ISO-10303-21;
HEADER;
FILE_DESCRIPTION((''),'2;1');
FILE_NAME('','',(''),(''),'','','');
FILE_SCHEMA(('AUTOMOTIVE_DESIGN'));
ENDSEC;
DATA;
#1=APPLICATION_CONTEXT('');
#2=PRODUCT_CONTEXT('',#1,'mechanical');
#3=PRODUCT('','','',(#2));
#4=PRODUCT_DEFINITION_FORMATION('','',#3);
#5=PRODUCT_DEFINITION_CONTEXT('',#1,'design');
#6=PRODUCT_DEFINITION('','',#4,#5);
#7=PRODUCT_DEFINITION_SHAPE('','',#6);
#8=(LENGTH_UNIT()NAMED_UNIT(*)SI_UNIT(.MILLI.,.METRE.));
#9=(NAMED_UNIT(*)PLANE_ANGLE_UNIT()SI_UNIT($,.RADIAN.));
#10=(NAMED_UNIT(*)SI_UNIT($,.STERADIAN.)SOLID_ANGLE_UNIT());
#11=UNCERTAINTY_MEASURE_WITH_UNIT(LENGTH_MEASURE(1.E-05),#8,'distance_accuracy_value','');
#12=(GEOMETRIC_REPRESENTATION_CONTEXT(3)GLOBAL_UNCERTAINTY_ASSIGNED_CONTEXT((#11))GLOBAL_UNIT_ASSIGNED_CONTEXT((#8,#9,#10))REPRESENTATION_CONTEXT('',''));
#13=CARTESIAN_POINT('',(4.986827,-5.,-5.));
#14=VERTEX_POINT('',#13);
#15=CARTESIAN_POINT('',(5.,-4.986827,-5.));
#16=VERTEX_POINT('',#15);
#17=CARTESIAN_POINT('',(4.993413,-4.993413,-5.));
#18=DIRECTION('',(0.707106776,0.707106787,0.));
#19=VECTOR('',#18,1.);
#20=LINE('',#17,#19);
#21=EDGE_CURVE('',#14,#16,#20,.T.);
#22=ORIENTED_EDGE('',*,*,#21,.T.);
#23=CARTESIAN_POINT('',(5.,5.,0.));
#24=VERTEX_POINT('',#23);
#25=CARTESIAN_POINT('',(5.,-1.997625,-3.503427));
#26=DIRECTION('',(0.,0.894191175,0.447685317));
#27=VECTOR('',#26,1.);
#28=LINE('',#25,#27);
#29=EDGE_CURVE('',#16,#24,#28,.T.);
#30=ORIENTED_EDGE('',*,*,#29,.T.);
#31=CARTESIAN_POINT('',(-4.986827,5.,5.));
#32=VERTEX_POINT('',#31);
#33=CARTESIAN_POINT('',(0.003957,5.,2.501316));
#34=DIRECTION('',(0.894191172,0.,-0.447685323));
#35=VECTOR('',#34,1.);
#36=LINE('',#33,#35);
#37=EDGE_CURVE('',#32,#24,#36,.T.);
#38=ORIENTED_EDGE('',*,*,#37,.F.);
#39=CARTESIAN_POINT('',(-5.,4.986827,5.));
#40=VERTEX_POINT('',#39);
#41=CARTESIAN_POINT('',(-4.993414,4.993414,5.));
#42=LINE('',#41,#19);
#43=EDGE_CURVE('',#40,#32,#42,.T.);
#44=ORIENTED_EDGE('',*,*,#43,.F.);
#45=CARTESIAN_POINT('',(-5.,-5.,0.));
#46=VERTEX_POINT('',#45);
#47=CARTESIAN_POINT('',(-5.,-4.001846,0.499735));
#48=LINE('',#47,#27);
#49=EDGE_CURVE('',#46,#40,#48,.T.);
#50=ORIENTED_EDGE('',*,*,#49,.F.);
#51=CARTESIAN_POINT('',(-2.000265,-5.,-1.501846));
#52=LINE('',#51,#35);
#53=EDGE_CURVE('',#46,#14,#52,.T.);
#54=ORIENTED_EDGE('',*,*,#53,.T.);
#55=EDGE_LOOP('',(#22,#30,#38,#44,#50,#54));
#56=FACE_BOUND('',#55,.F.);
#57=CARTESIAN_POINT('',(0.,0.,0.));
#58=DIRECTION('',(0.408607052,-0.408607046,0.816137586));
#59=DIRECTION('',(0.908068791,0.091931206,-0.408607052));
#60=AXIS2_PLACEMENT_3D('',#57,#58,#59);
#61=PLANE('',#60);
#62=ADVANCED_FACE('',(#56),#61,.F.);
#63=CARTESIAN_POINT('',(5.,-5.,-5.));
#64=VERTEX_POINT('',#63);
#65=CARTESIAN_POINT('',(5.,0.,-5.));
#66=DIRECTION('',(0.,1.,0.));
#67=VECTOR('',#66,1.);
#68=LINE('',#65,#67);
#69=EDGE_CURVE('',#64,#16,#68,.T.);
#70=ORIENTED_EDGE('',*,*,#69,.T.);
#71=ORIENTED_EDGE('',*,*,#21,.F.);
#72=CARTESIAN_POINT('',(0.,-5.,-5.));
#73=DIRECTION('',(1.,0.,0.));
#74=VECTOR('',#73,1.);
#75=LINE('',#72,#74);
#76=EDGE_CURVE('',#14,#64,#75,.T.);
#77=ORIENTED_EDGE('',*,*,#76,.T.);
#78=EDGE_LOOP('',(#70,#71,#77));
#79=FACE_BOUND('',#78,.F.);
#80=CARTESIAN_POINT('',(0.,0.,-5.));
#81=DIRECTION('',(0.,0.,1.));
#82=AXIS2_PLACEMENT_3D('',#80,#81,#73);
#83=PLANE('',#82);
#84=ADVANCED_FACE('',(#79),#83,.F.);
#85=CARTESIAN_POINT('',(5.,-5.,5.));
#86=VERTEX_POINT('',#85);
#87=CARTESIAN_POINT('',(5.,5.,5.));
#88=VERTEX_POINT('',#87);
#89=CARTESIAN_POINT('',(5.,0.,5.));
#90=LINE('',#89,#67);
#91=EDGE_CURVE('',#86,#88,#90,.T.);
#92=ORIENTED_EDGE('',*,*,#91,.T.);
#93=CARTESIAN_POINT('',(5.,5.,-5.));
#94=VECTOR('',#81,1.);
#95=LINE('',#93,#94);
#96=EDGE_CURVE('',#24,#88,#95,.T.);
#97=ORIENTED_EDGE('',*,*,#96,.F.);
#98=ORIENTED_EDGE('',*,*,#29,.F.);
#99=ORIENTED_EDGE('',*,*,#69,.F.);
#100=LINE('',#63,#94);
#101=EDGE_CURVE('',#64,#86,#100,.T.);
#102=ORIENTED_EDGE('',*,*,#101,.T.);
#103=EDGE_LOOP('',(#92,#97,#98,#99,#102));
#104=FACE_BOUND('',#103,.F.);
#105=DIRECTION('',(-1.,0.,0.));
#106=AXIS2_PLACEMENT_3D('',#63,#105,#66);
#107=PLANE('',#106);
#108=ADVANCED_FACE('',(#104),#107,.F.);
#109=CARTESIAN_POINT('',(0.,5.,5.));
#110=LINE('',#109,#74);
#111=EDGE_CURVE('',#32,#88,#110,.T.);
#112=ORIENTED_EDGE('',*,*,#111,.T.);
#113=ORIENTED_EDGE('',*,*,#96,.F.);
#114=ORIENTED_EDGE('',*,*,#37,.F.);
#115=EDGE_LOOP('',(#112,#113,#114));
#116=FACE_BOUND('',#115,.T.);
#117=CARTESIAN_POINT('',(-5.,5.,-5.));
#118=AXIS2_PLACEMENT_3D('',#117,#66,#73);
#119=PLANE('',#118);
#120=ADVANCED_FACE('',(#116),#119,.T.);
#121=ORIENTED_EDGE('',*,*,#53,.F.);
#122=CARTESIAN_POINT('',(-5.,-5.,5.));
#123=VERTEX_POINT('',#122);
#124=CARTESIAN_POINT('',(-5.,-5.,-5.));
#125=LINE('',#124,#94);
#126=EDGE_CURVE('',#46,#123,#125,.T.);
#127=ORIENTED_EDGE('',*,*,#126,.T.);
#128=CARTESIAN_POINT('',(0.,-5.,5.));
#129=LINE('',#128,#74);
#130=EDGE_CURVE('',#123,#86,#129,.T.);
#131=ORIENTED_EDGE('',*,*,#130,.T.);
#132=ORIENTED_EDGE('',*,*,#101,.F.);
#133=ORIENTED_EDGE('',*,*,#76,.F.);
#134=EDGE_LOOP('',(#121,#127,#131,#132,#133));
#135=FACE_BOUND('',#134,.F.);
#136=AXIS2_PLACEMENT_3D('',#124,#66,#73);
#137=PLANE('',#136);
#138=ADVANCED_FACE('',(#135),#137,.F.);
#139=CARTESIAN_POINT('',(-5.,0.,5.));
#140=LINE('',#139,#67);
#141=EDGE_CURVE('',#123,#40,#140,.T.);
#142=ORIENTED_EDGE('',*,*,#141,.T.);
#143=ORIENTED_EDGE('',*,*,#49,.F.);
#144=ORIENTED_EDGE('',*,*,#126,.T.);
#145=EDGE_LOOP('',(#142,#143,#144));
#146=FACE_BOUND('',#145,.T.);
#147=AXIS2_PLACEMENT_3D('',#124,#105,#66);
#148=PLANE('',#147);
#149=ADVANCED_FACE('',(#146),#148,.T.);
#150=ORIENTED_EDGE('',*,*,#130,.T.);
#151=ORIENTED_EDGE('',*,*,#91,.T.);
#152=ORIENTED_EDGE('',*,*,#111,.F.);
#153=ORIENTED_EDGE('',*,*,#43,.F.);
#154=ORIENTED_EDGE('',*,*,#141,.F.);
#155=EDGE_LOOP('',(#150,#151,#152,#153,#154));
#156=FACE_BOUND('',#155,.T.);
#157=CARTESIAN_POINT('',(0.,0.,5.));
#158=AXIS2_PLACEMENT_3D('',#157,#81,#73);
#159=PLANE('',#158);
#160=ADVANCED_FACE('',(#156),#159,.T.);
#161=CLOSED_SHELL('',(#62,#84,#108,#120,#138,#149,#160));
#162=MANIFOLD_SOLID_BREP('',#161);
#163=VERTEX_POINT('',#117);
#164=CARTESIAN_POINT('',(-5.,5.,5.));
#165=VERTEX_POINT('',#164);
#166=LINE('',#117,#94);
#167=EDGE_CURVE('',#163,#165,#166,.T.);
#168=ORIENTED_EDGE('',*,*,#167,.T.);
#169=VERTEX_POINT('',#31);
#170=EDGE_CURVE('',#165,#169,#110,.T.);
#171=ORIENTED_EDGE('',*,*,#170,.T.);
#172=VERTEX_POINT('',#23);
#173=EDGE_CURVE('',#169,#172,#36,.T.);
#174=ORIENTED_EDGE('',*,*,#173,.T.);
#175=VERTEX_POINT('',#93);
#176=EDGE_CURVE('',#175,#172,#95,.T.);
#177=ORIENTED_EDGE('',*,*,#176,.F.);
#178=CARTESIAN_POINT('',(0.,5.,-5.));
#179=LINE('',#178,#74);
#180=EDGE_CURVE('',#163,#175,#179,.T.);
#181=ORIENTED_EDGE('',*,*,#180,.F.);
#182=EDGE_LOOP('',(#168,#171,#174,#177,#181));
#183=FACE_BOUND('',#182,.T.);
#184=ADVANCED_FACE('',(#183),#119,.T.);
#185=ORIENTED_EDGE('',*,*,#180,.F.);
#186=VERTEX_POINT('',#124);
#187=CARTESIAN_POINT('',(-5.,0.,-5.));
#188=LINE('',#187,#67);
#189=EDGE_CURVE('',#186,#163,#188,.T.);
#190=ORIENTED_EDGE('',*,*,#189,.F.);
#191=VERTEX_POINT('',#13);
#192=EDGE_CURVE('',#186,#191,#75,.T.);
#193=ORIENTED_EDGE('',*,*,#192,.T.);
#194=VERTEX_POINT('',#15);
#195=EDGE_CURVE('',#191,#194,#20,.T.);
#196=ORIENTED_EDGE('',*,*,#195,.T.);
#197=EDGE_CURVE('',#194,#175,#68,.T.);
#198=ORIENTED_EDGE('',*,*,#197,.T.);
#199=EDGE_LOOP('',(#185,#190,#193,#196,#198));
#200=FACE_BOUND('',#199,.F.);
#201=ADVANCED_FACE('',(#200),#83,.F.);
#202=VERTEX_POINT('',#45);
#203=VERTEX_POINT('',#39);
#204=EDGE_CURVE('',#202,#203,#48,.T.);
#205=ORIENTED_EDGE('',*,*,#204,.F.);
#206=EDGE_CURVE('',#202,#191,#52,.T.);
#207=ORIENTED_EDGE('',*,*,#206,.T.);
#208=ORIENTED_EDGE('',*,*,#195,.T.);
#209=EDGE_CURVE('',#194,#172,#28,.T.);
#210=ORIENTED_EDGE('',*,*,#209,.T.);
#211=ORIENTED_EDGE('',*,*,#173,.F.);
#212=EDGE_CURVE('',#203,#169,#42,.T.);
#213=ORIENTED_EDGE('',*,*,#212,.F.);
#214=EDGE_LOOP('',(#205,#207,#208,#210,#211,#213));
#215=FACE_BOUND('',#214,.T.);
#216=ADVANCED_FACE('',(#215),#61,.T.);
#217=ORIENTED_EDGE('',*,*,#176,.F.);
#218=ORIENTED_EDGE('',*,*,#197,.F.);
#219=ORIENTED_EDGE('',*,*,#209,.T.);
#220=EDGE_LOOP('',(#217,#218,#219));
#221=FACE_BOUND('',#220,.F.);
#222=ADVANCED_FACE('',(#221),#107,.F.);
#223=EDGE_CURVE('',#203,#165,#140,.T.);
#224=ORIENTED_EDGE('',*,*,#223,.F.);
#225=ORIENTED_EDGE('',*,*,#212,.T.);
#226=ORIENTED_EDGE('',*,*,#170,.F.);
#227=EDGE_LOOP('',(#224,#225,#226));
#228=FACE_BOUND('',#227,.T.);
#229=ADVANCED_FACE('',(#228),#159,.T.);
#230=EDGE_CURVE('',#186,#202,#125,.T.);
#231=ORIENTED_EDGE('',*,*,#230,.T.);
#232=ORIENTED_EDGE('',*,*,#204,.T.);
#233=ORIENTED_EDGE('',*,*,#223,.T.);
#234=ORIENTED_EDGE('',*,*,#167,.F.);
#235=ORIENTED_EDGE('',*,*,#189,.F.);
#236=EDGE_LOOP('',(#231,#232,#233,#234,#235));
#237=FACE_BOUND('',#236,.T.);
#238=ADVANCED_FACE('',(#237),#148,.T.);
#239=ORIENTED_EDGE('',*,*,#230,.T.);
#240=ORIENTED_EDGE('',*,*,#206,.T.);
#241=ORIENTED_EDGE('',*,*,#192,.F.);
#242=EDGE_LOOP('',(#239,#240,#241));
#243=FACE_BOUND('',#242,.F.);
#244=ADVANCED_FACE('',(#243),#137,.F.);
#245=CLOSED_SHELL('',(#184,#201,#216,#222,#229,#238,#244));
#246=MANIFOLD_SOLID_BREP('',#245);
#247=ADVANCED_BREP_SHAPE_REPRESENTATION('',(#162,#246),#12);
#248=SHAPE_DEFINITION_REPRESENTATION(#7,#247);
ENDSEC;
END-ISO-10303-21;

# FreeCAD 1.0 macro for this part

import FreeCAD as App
import Part
import Sketcher

V = App.Vector


def add_polygon(sketch, points):
    """Adds a closed chain of lines whose ends are joined by coincident constraints."""
    first, n = sketch.GeometryCount, len(points)
    for a, b in zip(points, points[1:] + points[:1]):
        sketch.addGeometry(Part.LineSegment(App.Vector(*a, 0), App.Vector(*b, 0)), False)
    for i in range(n):
        sketch.addConstraint(Sketcher.Constraint("Coincident", first + i, 2, first + (i + 1) % n, 1))

doc = App.newDocument("Part")
body = doc.addObject("PartDesign::Body", "Body")

# Sketch on XY plane
sketch1 = body.newObject("Sketcher::SketchObject", "Sketch")
sketch1.AttachmentSupport = (doc.getObject("XY_Plane"), [""])
sketch1.MapMode = "FlatFace"
add_polygon(sketch1, [(0, 30), (0, 0), (30, 0), (30, 30)])  # lines 0-3
sketch1.addConstraint(Sketcher.Constraint("Vertical", 0))
sketch1.addConstraint(Sketcher.Constraint("Horizontal", 1))
sketch1.addConstraint(Sketcher.Constraint("Vertical", 2))
sketch1.addConstraint(Sketcher.Constraint("Horizontal", 3))
sketch1.addConstraint(Sketcher.Constraint("Coincident", 0, 2, -1, 1))
sketch1.addConstraint(Sketcher.Constraint("Equal", 3, 0))
sketch1.addConstraint(Sketcher.Constraint("DistanceX", 1, 1, 1, 2, 30.0))
pad1 = body.newObject("PartDesign::Pad", "Pad")
pad1.Profile = sketch1
pad1.Length = 30
body2 = doc.addObject("PartDesign::Body", "Body001")
doc.recompute()

body.Placement = App.Placement(V(0, 0, 0), App.Rotation(V(1, 0, 0), 26.595273))
boolean = body2.newObject("PartDesign::Boolean", "Boolean")
boolean.Type = "Fuse"
boolean.addObjects([body])
body3 = doc.addObject("PartDesign::Body", "Body002")
doc.recompute()

body2.Placement = App.Placement(V(0, 0, 0), App.Rotation(V(0, 1, 0), 24.117362))
boolean2 = body3.newObject("PartDesign::Boolean", "Boolean001")
boolean2.Type = "Fuse"
boolean2.addObjects([body2])
body4 = doc.addObject("PartDesign::Body", "Body003")
doc.recompute()

body3.Placement = App.Placement(V(-15, -15, 0), App.Rotation(V(0, 0, 1), 5.780823))
boolean3 = body4.newObject("PartDesign::Boolean", "Boolean002")
boolean3.Type = "Fuse"
boolean3.addObjects([body3])
body5 = doc.addObject("PartDesign::Body", "Body004")

# Sketch on XY plane
sketch2 = body5.newObject("Sketcher::SketchObject", "Sketch001")
sketch2.AttachmentSupport = (doc.getObject("XY_Plane004"), [""])
sketch2.MapMode = "FlatFace"
sketch2.AttachmentOffset = App.Placement(V(0, 0, -5), App.Rotation())
add_polygon(sketch2, [(-5, 5), (-5, -5), (5, -5), (5, 5)])  # lines 0-3
sketch2.addConstraint(Sketcher.Constraint("Vertical", 0))
sketch2.addConstraint(Sketcher.Constraint("Horizontal", 1))
sketch2.addConstraint(Sketcher.Constraint("Vertical", 2))
sketch2.addConstraint(Sketcher.Constraint("Horizontal", 3))
sketch2.addConstraint(Sketcher.Constraint("Symmetric", 0, 2, 2, 2, -1, 1))
sketch2.addConstraint(Sketcher.Constraint("Equal", 3, 0))
sketch2.addConstraint(Sketcher.Constraint("DistanceX", 1, 1, 1, 2, 10.0))
pad2 = body5.newObject("PartDesign::Pad", "Pad001")
pad2.Profile = sketch2
pad2.Length = 10
doc.recompute()

boolean4 = body5.newObject("PartDesign::Boolean", "Boolean003")
boolean4.Type = "Cut"
boolean4.addObjects([body4])
body6 = doc.addObject("PartDesign::Body", "Body005")

# Sketch on XY plane
sketch3 = body6.newObject("Sketcher::SketchObject", "Sketch002")
sketch3.AttachmentSupport = (doc.getObject("XY_Plane005"), [""])
sketch3.MapMode = "FlatFace"
add_polygon(sketch3, [(0, 30), (0, 0), (30, 0), (30, 30)])  # lines 0-3
sketch3.addConstraint(Sketcher.Constraint("Vertical", 0))
sketch3.addConstraint(Sketcher.Constraint("Horizontal", 1))
sketch3.addConstraint(Sketcher.Constraint("Vertical", 2))
sketch3.addConstraint(Sketcher.Constraint("Horizontal", 3))
sketch3.addConstraint(Sketcher.Constraint("Coincident", 0, 2, -1, 1))
sketch3.addConstraint(Sketcher.Constraint("Equal", 3, 0))
sketch3.addConstraint(Sketcher.Constraint("DistanceX", 1, 1, 1, 2, 30.0))
pad3 = body6.newObject("PartDesign::Pad", "Pad002")
pad3.Profile = sketch3
pad3.Length = 30
body7 = doc.addObject("PartDesign::Body", "Body006")
doc.recompute()

body6.Placement = App.Placement(V(0, 0, 0), App.Rotation(V(1, 0, 0), 26.595273))
boolean5 = body7.newObject("PartDesign::Boolean", "Boolean004")
boolean5.Type = "Fuse"
boolean5.addObjects([body6])
body8 = doc.addObject("PartDesign::Body", "Body007")
doc.recompute()

body7.Placement = App.Placement(V(0, 0, 0), App.Rotation(V(0, 1, 0), 24.117362))
boolean6 = body8.newObject("PartDesign::Boolean", "Boolean005")
boolean6.Type = "Fuse"
boolean6.addObjects([body7])
body9 = doc.addObject("PartDesign::Body", "Body008")
doc.recompute()

body8.Placement = App.Placement(V(-15, -15, 0), App.Rotation(V(0, 0, 1), 5.780823))
boolean7 = body9.newObject("PartDesign::Boolean", "Boolean006")
boolean7.Type = "Fuse"
boolean7.addObjects([body8])
body10 = doc.addObject("PartDesign::Body", "Body009")

# Sketch on XY plane
sketch4 = body10.newObject("Sketcher::SketchObject", "Sketch003")
sketch4.AttachmentSupport = (doc.getObject("XY_Plane009"), [""])
sketch4.MapMode = "FlatFace"
sketch4.AttachmentOffset = App.Placement(V(0, 0, -5), App.Rotation())
add_polygon(sketch4, [(-5, 5), (-5, -5), (5, -5), (5, 5)])  # lines 0-3
sketch4.addConstraint(Sketcher.Constraint("Vertical", 0))
sketch4.addConstraint(Sketcher.Constraint("Horizontal", 1))
sketch4.addConstraint(Sketcher.Constraint("Vertical", 2))
sketch4.addConstraint(Sketcher.Constraint("Horizontal", 3))
sketch4.addConstraint(Sketcher.Constraint("Symmetric", 0, 2, 2, 2, -1, 1))
sketch4.addConstraint(Sketcher.Constraint("Equal", 3, 0))
sketch4.addConstraint(Sketcher.Constraint("DistanceX", 1, 1, 1, 2, 10.0))
pad4 = body10.newObject("PartDesign::Pad", "Pad003")
pad4.Profile = sketch4
pad4.Length = 10
doc.recompute()

boolean8 = body10.newObject("PartDesign::Boolean", "Boolean007")
boolean8.Type = "Common"
boolean8.addObjects([body9])

doc.recompute()
